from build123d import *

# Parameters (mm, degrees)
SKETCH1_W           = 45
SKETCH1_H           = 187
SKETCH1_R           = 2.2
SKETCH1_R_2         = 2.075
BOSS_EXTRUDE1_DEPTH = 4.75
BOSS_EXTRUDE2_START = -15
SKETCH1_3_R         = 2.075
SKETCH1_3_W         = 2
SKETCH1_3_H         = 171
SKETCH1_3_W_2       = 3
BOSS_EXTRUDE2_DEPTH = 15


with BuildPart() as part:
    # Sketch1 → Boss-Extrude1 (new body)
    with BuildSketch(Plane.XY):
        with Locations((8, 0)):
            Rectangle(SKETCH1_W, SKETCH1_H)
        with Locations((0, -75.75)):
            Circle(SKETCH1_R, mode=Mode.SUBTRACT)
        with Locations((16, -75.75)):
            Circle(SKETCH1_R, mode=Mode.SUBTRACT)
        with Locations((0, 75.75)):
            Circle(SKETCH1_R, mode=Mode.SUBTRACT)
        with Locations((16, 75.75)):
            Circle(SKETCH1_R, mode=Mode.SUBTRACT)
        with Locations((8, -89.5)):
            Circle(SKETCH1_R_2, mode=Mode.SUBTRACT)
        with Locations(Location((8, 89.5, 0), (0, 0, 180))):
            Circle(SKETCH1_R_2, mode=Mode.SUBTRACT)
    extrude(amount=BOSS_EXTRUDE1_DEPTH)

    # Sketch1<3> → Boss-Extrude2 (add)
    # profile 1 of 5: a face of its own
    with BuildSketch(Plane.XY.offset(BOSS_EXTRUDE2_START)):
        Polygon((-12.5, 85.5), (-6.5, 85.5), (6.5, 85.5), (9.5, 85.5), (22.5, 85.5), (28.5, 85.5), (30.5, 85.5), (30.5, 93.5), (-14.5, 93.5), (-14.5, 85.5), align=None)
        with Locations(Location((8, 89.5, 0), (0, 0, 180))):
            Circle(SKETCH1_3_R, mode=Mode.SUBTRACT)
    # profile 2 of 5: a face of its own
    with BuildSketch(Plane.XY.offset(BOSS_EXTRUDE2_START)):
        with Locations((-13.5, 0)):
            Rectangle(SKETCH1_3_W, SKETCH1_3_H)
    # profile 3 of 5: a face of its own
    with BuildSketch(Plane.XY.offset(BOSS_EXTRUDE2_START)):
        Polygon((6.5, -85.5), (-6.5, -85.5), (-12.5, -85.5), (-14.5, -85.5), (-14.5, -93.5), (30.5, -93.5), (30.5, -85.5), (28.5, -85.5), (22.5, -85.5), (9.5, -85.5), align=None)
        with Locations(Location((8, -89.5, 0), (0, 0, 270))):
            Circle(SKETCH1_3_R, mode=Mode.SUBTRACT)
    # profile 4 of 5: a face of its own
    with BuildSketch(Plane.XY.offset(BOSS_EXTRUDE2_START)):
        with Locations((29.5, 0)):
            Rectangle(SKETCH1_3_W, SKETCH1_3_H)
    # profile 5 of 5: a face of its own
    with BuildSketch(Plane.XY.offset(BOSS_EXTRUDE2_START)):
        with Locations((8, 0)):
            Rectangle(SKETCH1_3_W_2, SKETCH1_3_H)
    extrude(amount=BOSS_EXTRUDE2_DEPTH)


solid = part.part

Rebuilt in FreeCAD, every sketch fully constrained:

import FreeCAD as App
import Part
import Sketcher
from FreeCAD import Vector


def add_polygon(sketch, points):
    """Adds a closed chain of lines whose ends are joined by coincident constraints."""
    first, n = sketch.GeometryCount, len(points)
    for a, b in zip(points, points[1:] + points[:1]):
        sketch.addGeometry(Part.LineSegment(App.Vector(*a, 0), App.Vector(*b, 0)), False)
    for i in range(n):
        sketch.addConstraint(Sketcher.Constraint("Coincident", first + i, 2, first + (i + 1) % n, 1))

doc = App.newDocument("Part")
params = doc.addObject("Spreadsheet::Sheet", "Params")
for row, (alias, value) in enumerate([
    ("sketch1_diameter", "4.4 mm"),
    ("sketch1_diameter2", "4.15 mm"),
    ("sketch1_width", "45 mm"),
    ("sketch1_height", "187 mm"),
    ("pad1_length", "4.75 mm"),
    ("sketch2_diameter", "4.15 mm"),
    ("sketch2_width", "45 mm"),
    ("sketch2_width2", "19 mm"),
    ("sketch2_height", "187 mm"),
    ("sketch2_height2", "171 mm"),
    ("pad2_length", "15 mm"),
], start=1):
    params.set(f"A{row}", alias)
    params.set(f"B{row}", "=" + value)
    params.setAlias(f"B{row}", alias)

body = doc.addObject("PartDesign::Body", "Body")

sketch1 = body.newObject("Sketcher::SketchObject", "Sketch")
sketch1.AttachmentSupport = (doc.getObject("XY_Plane"), [""])
sketch1.MapMode = "FlatFace"
add_polygon(sketch1, [(-14.5, 93.5), (-14.5, -93.5), (30.5, -93.5), (30.5, 93.5)])
sketch1.addGeometry(Part.Circle(Vector(0, -75.8, 0), Vector(0, 0, 1), 2.2), False)
sketch1.addGeometry(Part.Circle(Vector(8, -89.5, 0), Vector(0, 0, 1), 2.1), False)
sketch1.addGeometry(Part.Circle(Vector(16, -75.8, 0), Vector(0, 0, 1), 2.2), False)
sketch1.addGeometry(Part.Circle(Vector(0, 75.8, 0), Vector(0, 0, 1), 2.2), False)
sketch1.addGeometry(Part.Circle(Vector(8, 89.5, 0), Vector(0, 0, 1), 2.1), False)
sketch1.addGeometry(Part.Circle(Vector(16, 75.8, 0), Vector(0, 0, 1), 2.2), False)
sketch1.addConstraint([
    Sketcher.Constraint("Vertical", 0),
    Sketcher.Constraint("Horizontal", 1),
    Sketcher.Constraint("Vertical", 2),
    Sketcher.Constraint("Horizontal", 3),
    Sketcher.Constraint("Equal", 4, 6),
    Sketcher.Constraint("Equal", 6, 7),
    Sketcher.Constraint("Equal", 5, 8),
    Sketcher.Constraint("Equal", 7, 9),
    Sketcher.Constraint("Symmetric", 4, 3, 7, 3, -1, 1),
    Sketcher.Constraint("Symmetric", 5, 3, 8, 3, -1),
    Sketcher.Constraint("Symmetric", 6, 3, 9, 3, -1),
    Sketcher.Constraint("PointOnObject", 4, 3, -2),
    Sketcher.Constraint("Horizontal", 4, 3, 6, 3),
    Sketcher.Constraint("Diameter", 4, 4.4),
    Sketcher.Constraint("Diameter", 5, 4.15),
    Sketcher.Constraint("DistanceX", 1, 1, 1, 2, 45.0),
    Sketcher.Constraint("DistanceY", 0, 2, 0, 1, 187.0),
    Sketcher.Constraint("DistanceX", -1, 1, 5, 3, 8.0),
    Sketcher.Constraint("DistanceX", -1, 1, 6, 3, 16.0),
    Sketcher.Constraint("DistanceY", 5, 3, 8, 3, 179.0),
    Sketcher.Constraint("DistanceY", 0, 2, 5, 3, 4.0),
    Sketcher.Constraint("DistanceX", 0, 2, -1, 1, 14.5),
    Sketcher.Constraint("DistanceY", 4, 3, 7, 3, 151.5),
])
sketch1.setExpression("Constraints[17]", "Params.sketch1_diameter")
sketch1.setExpression("Constraints[18]", "Params.sketch1_diameter2")
sketch1.setExpression("Constraints[19]", "Params.sketch1_width")
sketch1.setExpression("Constraints[20]", "Params.sketch1_height")
pad1 = body.newObject("PartDesign::Pad", "Pad")
pad1.Profile = sketch1
pad1.setExpression("Length", "Params.pad1_length")

sketch2 = body.newObject("Sketcher::SketchObject", "Sketch001")
sketch2.AttachmentSupport = (doc.getObject("XY_Plane"), [""])
sketch2.MapMode = "FlatFace"
sketch2.AttachmentOffset = App.Placement(Vector(0, 0, -15), App.Rotation())
add_polygon(sketch2, [(30.5, 93.5), (-14.5, 93.5), (-14.5, -93.5), (30.5, -93.5)])
add_polygon(sketch2, [(-12.5, 85.5), (6.5, 85.5), (6.5, -85.5), (-12.5, -85.5)])
add_polygon(sketch2, [(9.5, 85.5), (28.5, 85.5), (28.5, -85.5), (9.5, -85.5)])
sketch2.addGeometry(Part.Circle(Vector(8, 89.5, 0), Vector(0, 0, 1), 2.1), False)
sketch2.addGeometry(Part.Circle(Vector(8, -89.5, 0), Vector(0, 0, 1), 2.1), False)
sketch2.addConstraint([
    Sketcher.Constraint("Horizontal", 0),
    Sketcher.Constraint("Vertical", 1),
    Sketcher.Constraint("Horizontal", 2),
    Sketcher.Constraint("Vertical", 3),
    Sketcher.Constraint("Horizontal", 4),
    Sketcher.Constraint("Vertical", 5),
    Sketcher.Constraint("Horizontal", 6),
    Sketcher.Constraint("Vertical", 7),
    Sketcher.Constraint("Horizontal", 8),
    Sketcher.Constraint("Vertical", 9),
    Sketcher.Constraint("Horizontal", 10),
    Sketcher.Constraint("Vertical", 11),
    Sketcher.Constraint("Equal", 12, 13),
    Sketcher.Constraint("Symmetric", 12, 3, 13, 3, -1),
    Sketcher.Constraint("Horizontal", 7, 2, 8, 2),
    Sketcher.Constraint("Horizontal", 6, 2, 9, 2),
    Sketcher.Constraint("Equal", 6, 8),
    Sketcher.Constraint("Diameter", 12, 4.15),
    Sketcher.Constraint("DistanceX", 0, 2, 0, 1, 45.0),
    Sketcher.Constraint("DistanceX", 4, 1, 4, 2, 19.0),
    Sketcher.Constraint("DistanceY", 1, 2, 1, 1, 187.0),
    Sketcher.Constraint("DistanceY", 5, 2, 5, 1, 171.0),
    Sketcher.Constraint("DistanceX", -1, 1, 12, 3, 8.0),
    Sketcher.Constraint("DistanceY", 13, 3, 12, 3, 179.0),
    Sketcher.Constraint("DistanceY", 12, 3, 0, 2, 4.0),
    Sketcher.Constraint("DistanceY", 4, 2, 12, 3, 4.0),
    Sketcher.Constraint("DistanceX", 0, 2, 4, 2, 21.0),
    Sketcher.Constraint("DistanceX", 8, 2, 3, 2, 2.0),
    Sketcher.Constraint("DistanceX", 0, 2, -1, 1, 14.5),
])
sketch2.setExpression("Constraints[29]", "Params.sketch2_diameter")
sketch2.setExpression("Constraints[30]", "Params.sketch2_width")
sketch2.setExpression("Constraints[31]", "Params.sketch2_width2")
sketch2.setExpression("Constraints[32]", "Params.sketch2_height")
sketch2.setExpression("Constraints[33]", "Params.sketch2_height2")
pad2 = body.newObject("PartDesign::Pad", "Pad001")
pad2.Profile = sketch2
pad2.setExpression("Length", "Params.pad2_length")

doc.recompute()
